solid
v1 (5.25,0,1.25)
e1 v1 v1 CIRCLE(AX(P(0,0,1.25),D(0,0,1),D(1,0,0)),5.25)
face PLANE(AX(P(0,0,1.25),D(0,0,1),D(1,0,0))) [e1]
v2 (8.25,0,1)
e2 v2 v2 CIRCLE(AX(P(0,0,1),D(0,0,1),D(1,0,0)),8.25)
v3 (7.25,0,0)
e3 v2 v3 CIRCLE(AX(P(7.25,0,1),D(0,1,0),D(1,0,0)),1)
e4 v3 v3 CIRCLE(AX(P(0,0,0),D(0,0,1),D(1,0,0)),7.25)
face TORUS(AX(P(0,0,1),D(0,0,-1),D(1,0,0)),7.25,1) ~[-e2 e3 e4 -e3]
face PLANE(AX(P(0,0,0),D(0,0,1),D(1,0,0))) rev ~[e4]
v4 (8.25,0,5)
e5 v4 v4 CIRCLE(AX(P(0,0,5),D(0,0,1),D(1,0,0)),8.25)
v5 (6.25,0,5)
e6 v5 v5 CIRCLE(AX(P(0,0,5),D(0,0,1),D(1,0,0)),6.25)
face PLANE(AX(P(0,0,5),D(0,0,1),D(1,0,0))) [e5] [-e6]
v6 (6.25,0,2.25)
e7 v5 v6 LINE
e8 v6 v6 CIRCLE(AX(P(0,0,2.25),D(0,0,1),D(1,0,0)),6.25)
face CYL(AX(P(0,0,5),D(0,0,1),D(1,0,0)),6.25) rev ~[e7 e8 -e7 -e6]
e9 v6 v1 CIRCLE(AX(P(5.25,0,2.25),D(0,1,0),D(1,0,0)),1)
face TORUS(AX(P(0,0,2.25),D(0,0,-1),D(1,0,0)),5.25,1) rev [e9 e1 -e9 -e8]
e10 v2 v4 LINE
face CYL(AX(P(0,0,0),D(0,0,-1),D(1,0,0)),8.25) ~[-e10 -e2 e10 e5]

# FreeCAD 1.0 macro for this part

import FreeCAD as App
import Part
import Sketcher
from FreeCAD import Vector


def edges_at(feature, points):
    """Names of the edges that pass closest to the given points."""
    edges = feature.Shape.Edges
    near = lambda p: min(range(len(edges)), key=lambda i: edges[i].distToShape(Part.Vertex(*p))[0])
    return sorted({f"Edge{near(p) + 1}" for p in points})

doc = App.newDocument("Part")
body = doc.addObject("PartDesign::Body", "Body")

sketch1 = doc.addObject("Sketcher::SketchObject", "Sketch")
body.addObject(sketch1)
sketch1.AttachmentSupport = (doc.XY_Plane, [""])
sketch1.MapMode = "FlatFace"
sketch1.addGeometry(Part.Circle(Vector(0, 0, 0), Vector(0, 0, 1), 8), False)
sketch1.addConstraint([
    Sketcher.Constraint("Coincident", 0, 3, -1, 1),
    Sketcher.Constraint("Diameter", 0, 16.5),
])
pad1 = doc.addObject("PartDesign::Pad", "Pad")
body.addObject(pad1)
pad1.Profile = sketch1
pad1.Length = 5

sketch2 = doc.addObject("Sketcher::SketchObject", "Sketch001")
body.addObject(sketch2)
sketch2.AttachmentSupport = (doc.XY_Plane, [""])
sketch2.MapMode = "FlatFace"
sketch2.AttachmentOffset = App.Placement(Vector(0, 0, 5), App.Rotation())
sketch2.addGeometry(Part.Circle(Vector(0, 0, 0), Vector(0, 0, 1), 6), False)
sketch2.addConstraint([
    Sketcher.Constraint("Coincident", 0, 3, -1, 1),
    Sketcher.Constraint("Diameter", 0, 12.5),
])
pocket1 = doc.addObject("PartDesign::Pocket", "Pocket")
body.addObject(pocket1)
pocket1.Profile = sketch2
pocket1.Length = 3.75
doc.recompute()

fillet = doc.addObject("PartDesign::Fillet", "Fillet")
body.addObject(fillet)
fillet.Base = (pocket1, edges_at(pocket1, [(-8.25, 0, 0), (-6.25, 0, 1.25)]))
fillet.Radius = 1

doc.recompute()
